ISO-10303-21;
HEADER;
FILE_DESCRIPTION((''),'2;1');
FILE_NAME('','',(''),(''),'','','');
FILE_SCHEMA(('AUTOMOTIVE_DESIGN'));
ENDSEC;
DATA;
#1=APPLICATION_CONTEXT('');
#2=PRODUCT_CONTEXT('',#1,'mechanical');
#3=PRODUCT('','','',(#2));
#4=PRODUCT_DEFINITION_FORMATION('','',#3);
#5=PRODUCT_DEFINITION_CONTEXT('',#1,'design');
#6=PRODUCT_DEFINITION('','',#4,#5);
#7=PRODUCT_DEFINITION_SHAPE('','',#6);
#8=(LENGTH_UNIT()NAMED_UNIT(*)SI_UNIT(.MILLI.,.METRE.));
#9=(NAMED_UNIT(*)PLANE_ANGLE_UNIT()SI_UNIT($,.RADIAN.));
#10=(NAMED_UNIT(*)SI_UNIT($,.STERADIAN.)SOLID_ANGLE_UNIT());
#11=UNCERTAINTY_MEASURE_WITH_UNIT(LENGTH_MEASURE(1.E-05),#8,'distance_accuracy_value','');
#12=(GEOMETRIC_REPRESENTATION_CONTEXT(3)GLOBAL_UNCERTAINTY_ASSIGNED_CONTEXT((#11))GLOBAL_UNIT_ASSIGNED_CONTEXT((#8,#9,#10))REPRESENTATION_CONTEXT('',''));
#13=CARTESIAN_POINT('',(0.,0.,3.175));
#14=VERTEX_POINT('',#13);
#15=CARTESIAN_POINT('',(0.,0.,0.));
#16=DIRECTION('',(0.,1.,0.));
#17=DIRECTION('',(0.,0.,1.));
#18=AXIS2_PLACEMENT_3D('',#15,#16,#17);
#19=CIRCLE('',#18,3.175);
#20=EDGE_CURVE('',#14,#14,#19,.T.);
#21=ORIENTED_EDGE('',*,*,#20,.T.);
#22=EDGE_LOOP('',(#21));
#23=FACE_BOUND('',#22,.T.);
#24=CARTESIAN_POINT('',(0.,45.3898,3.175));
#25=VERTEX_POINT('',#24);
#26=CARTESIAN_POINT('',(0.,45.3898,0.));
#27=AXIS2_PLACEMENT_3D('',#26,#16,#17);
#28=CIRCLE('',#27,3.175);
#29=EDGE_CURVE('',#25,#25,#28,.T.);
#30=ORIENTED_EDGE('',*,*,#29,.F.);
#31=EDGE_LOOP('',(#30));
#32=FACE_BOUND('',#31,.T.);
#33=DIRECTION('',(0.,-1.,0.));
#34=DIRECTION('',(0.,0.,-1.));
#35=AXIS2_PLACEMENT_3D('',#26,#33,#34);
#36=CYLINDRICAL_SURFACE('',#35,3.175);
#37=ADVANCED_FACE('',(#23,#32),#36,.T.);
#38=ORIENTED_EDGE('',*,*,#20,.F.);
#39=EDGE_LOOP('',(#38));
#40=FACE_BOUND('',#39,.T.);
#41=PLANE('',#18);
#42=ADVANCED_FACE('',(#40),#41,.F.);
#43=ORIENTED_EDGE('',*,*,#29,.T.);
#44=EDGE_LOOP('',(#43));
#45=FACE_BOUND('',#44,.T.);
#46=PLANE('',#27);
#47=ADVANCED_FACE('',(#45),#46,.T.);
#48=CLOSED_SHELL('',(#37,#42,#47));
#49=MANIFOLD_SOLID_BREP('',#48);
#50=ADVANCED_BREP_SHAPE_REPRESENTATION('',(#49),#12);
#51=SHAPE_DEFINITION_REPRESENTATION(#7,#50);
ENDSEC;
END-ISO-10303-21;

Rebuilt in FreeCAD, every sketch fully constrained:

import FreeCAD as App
import Part
import Sketcher

V = App.Vector
Q = App.Units.Quantity

doc = App.newDocument("Part")
body = doc.addObject("PartDesign::Body", "Body")

# Sketch on XZ plane
sketch1 = body.newObject("Sketcher::SketchObject", "Sketch")
sketch1.AttachmentSupport = (doc.getObject("XZ_Plane"), [""])
sketch1.MapMode = "FlatFace"
sketch1.addGeometry(Part.Circle(V(0, 0, 0), V(0, 0, 1), 3.2), False)
sketch1.addConstraint([
    Sketcher.Constraint("Coincident", 0, 3, -1, 1),
    Sketcher.Constraint("Diameter", 0, Q("0.25 in")),
])
pad1 = body.newObject("PartDesign::Pad", "Pad")
pad1.Profile = sketch1
pad1.Length = Q("1.787 in")
pad1.Reversed = True

doc.recompute()
